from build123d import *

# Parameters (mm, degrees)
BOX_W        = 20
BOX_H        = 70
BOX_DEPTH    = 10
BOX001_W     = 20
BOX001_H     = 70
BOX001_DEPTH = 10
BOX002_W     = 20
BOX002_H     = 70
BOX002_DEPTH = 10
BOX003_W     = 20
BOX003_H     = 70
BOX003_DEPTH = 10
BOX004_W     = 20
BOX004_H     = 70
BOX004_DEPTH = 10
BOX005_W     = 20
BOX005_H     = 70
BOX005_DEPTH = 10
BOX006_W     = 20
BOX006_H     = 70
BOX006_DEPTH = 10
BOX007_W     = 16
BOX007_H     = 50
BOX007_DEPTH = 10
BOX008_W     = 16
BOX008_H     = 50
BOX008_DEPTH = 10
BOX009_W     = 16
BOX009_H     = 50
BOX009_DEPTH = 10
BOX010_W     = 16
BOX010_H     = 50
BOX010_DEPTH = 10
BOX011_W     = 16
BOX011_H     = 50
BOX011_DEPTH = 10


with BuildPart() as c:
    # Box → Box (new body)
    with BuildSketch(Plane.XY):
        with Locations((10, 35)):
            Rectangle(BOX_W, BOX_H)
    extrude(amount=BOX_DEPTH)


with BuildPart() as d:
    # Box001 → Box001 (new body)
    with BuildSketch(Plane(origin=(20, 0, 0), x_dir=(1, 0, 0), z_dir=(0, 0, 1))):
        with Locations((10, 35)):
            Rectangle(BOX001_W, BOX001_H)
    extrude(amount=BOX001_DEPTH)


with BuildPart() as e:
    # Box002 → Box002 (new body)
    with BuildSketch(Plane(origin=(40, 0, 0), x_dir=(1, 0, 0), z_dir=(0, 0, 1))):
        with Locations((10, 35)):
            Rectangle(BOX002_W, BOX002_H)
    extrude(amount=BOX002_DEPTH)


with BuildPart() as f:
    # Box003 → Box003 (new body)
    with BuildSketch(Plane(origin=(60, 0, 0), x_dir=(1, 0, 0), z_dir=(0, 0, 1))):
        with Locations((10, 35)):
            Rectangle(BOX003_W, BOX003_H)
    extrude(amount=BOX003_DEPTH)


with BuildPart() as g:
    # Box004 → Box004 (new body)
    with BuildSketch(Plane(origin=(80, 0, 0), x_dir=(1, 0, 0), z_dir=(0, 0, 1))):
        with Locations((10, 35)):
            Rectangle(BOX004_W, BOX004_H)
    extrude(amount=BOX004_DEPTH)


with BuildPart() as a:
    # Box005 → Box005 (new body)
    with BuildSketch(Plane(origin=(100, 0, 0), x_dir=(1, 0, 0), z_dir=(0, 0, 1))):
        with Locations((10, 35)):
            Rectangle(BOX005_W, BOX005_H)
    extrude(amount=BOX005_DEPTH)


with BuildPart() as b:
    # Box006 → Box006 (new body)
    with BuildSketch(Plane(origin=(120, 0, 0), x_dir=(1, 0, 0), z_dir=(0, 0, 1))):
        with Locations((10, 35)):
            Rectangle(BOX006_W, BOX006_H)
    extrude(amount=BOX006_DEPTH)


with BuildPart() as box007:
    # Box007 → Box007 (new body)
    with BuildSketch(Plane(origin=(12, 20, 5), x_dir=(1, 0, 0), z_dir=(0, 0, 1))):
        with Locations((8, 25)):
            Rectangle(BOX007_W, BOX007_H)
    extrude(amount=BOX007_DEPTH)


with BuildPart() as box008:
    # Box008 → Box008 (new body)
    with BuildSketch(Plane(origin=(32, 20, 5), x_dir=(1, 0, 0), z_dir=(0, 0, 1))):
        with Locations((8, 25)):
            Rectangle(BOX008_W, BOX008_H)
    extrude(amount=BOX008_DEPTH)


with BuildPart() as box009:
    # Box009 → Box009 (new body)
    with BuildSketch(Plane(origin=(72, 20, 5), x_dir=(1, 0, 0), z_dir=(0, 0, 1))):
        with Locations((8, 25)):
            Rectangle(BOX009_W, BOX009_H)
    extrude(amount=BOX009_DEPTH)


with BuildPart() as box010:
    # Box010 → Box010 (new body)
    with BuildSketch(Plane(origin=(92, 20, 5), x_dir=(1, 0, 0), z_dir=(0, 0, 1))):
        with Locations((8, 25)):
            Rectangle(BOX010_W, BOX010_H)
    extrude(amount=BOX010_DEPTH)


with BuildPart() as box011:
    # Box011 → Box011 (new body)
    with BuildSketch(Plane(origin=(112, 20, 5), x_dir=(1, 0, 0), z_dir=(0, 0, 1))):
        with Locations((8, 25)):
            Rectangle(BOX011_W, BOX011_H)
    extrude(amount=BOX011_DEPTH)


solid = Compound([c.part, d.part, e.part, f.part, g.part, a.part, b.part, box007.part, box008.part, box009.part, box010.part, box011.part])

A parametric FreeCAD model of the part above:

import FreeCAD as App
import Part
import Sketcher

doc = App.newDocument("Part")
body = doc.addObject("PartDesign::Body", "Body")

# Sketch on XY plane
sketch1 = body.newObject("Sketcher::SketchObject", "Sketch")
sketch1.AttachmentSupport = (doc.getObject("XY_Plane"), [""])
sketch1.MapMode = "FlatFace"
sketch1.addGeometry(Part.LineSegment(App.Vector(0, 70, 0), App.Vector(0, 0, 0)), False)
sketch1.addGeometry(Part.LineSegment(App.Vector(0, 0, 0), App.Vector(20, 0, 0)), False)
sketch1.addGeometry(Part.LineSegment(App.Vector(20, 0, 0), App.Vector(20, 70, 0)), False)
sketch1.addGeometry(Part.LineSegment(App.Vector(20, 70, 0), App.Vector(0, 70, 0)), False)
sketch1.addConstraint(Sketcher.Constraint("Coincident", 0, 2, 1, 1))
sketch1.addConstraint(Sketcher.Constraint("Coincident", 1, 2, 2, 1))
sketch1.addConstraint(Sketcher.Constraint("Coincident", 2, 2, 3, 1))
sketch1.addConstraint(Sketcher.Constraint("Coincident", 3, 2, 0, 1))
sketch1.addConstraint(Sketcher.Constraint("Vertical", 0))
sketch1.addConstraint(Sketcher.Constraint("Horizontal", 1))
sketch1.addConstraint(Sketcher.Constraint("Vertical", 2))
sketch1.addConstraint(Sketcher.Constraint("Horizontal", 3))
sketch1.addConstraint(Sketcher.Constraint("Coincident", 0, 2, -1, 1))
sketch1.addConstraint(Sketcher.Constraint("DistanceX", 1, 1, 1, 2, 20.0))
sketch1.addConstraint(Sketcher.Constraint("DistanceY", 0, 2, 0, 1, 70.0))
pad1 = body.newObject("PartDesign::Pad", "Pad")
pad1.Profile = sketch1
pad1.Length = 10
body2 = doc.addObject("PartDesign::Body", "Body001")

# Sketch on XY plane
sketch2 = body2.newObject("Sketcher::SketchObject", "Sketch001")
sketch2.AttachmentSupport = (doc.getObject("XY_Plane001"), [""])
sketch2.MapMode = "FlatFace"
sketch2.addGeometry(Part.LineSegment(App.Vector(20, 70, 0), App.Vector(20, 0, 0)), False)
sketch2.addGeometry(Part.LineSegment(App.Vector(20, 0, 0), App.Vector(40, 0, 0)), False)
sketch2.addGeometry(Part.LineSegment(App.Vector(40, 0, 0), App.Vector(40, 70, 0)), False)
sketch2.addGeometry(Part.LineSegment(App.Vector(40, 70, 0), App.Vector(20, 70, 0)), False)
sketch2.addConstraint(Sketcher.Constraint("Coincident", 0, 2, 1, 1))
sketch2.addConstraint(Sketcher.Constraint("Coincident", 1, 2, 2, 1))
sketch2.addConstraint(Sketcher.Constraint("Coincident", 2, 2, 3, 1))
sketch2.addConstraint(Sketcher.Constraint("Coincident", 3, 2, 0, 1))
sketch2.addConstraint(Sketcher.Constraint("Vertical", 0))
sketch2.addConstraint(Sketcher.Constraint("Horizontal", 1))
sketch2.addConstraint(Sketcher.Constraint("Vertical", 2))
sketch2.addConstraint(Sketcher.Constraint("Horizontal", 3))
sketch2.addConstraint(Sketcher.Constraint("PointOnObject", 0, 2, -1))
sketch2.addConstraint(Sketcher.Constraint("DistanceX", 1, 1, 1, 2, 20.0))
sketch2.addConstraint(Sketcher.Constraint("DistanceY", 0, 2, 0, 1, 70.0))
sketch2.addConstraint(Sketcher.Constraint("DistanceX", -1, 1, 0, 2, 20.0))
pad2 = body2.newObject("PartDesign::Pad", "Pad001")
pad2.Profile = sketch2
pad2.Length = 10
body3 = doc.addObject("PartDesign::Body", "Body002")

# Sketch on XY plane
sketch3 = body3.newObject("Sketcher::SketchObject", "Sketch002")
sketch3.AttachmentSupport = (doc.getObject("XY_Plane002"), [""])
sketch3.MapMode = "FlatFace"
sketch3.addGeometry(Part.LineSegment(App.Vector(40, 70, 0), App.Vector(40, 0, 0)), False)
sketch3.addGeometry(Part.LineSegment(App.Vector(40, 0, 0), App.Vector(60, 0, 0)), False)
sketch3.addGeometry(Part.LineSegment(App.Vector(60, 0, 0), App.Vector(60, 70, 0)), False)
sketch3.addGeometry(Part.LineSegment(App.Vector(60, 70, 0), App.Vector(40, 70, 0)), False)
sketch3.addConstraint(Sketcher.Constraint("Coincident", 0, 2, 1, 1))
sketch3.addConstraint(Sketcher.Constraint("Coincident", 1, 2, 2, 1))
sketch3.addConstraint(Sketcher.Constraint("Coincident", 2, 2, 3, 1))
sketch3.addConstraint(Sketcher.Constraint("Coincident", 3, 2, 0, 1))
sketch3.addConstraint(Sketcher.Constraint("Vertical", 0))
sketch3.addConstraint(Sketcher.Constraint("Horizontal", 1))
sketch3.addConstraint(Sketcher.Constraint("Vertical", 2))
sketch3.addConstraint(Sketcher.Constraint("Horizontal", 3))
sketch3.addConstraint(Sketcher.Constraint("PointOnObject", 0, 2, -1))
sketch3.addConstraint(Sketcher.Constraint("DistanceX", 1, 1, 1, 2, 20.0))
sketch3.addConstraint(Sketcher.Constraint("DistanceY", 0, 2, 0, 1, 70.0))
sketch3.addConstraint(Sketcher.Constraint("DistanceX", -1, 1, 0, 2, 40.0))
pad3 = body3.newObject("PartDesign::Pad", "Pad002")
pad3.Profile = sketch3
pad3.Length = 10
body4 = doc.addObject("PartDesign::Body", "Body003")

# Sketch on XY plane
sketch4 = body4.newObject("Sketcher::SketchObject", "Sketch003")
sketch4.AttachmentSupport = (doc.getObject("XY_Plane003"), [""])
sketch4.MapMode = "FlatFace"
sketch4.addGeometry(Part.LineSegment(App.Vector(60, 70, 0), App.Vector(60, 0, 0)), False)
sketch4.addGeometry(Part.LineSegment(App.Vector(60, 0, 0), App.Vector(80, 0, 0)), False)
sketch4.addGeometry(Part.LineSegment(App.Vector(80, 0, 0), App.Vector(80, 70, 0)), False)
sketch4.addGeometry(Part.LineSegment(App.Vector(80, 70, 0), App.Vector(60, 70, 0)), False)
sketch4.addConstraint(Sketcher.Constraint("Coincident", 0, 2, 1, 1))
sketch4.addConstraint(Sketcher.Constraint("Coincident", 1, 2, 2, 1))
sketch4.addConstraint(Sketcher.Constraint("Coincident", 2, 2, 3, 1))
sketch4.addConstraint(Sketcher.Constraint("Coincident", 3, 2, 0, 1))
sketch4.addConstraint(Sketcher.Constraint("Vertical", 0))
sketch4.addConstraint(Sketcher.Constraint("Horizontal", 1))
sketch4.addConstraint(Sketcher.Constraint("Vertical", 2))
sketch4.addConstraint(Sketcher.Constraint("Horizontal", 3))
sketch4.addConstraint(Sketcher.Constraint("PointOnObject", 0, 2, -1))
sketch4.addConstraint(Sketcher.Constraint("DistanceX", 1, 1, 1, 2, 20.0))
sketch4.addConstraint(Sketcher.Constraint("DistanceY", 0, 2, 0, 1, 70.0))
sketch4.addConstraint(Sketcher.Constraint("DistanceX", -1, 1, 0, 2, 60.0))
pad4 = body4.newObject("PartDesign::Pad", "Pad003")
pad4.Profile = sketch4
pad4.Length = 10
body5 = doc.addObject("PartDesign::Body", "Body004")

# Sketch on XY plane
sketch5 = body5.newObject("Sketcher::SketchObject", "Sketch004")
sketch5.AttachmentSupport = (doc.getObject("XY_Plane004"), [""])
sketch5.MapMode = "FlatFace"
sketch5.addGeometry(Part.LineSegment(App.Vector(80, 70, 0), App.Vector(80, 0, 0)), False)
sketch5.addGeometry(Part.LineSegment(App.Vector(80, 0, 0), App.Vector(100, 0, 0)), False)
sketch5.addGeometry(Part.LineSegment(App.Vector(100, 0, 0), App.Vector(100, 70, 0)), False)
sketch5.addGeometry(Part.LineSegment(App.Vector(100, 70, 0), App.Vector(80, 70, 0)), False)
sketch5.addConstraint(Sketcher.Constraint("Coincident", 0, 2, 1, 1))
sketch5.addConstraint(Sketcher.Constraint("Coincident", 1, 2, 2, 1))
sketch5.addConstraint(Sketcher.Constraint("Coincident", 2, 2, 3, 1))
sketch5.addConstraint(Sketcher.Constraint("Coincident", 3, 2, 0, 1))
sketch5.addConstraint(Sketcher.Constraint("Vertical", 0))
sketch5.addConstraint(Sketcher.Constraint("Horizontal", 1))
sketch5.addConstraint(Sketcher.Constraint("Vertical", 2))
sketch5.addConstraint(Sketcher.Constraint("Horizontal", 3))
sketch5.addConstraint(Sketcher.Constraint("PointOnObject", 0, 2, -1))
sketch5.addConstraint(Sketcher.Constraint("DistanceX", 1, 1, 1, 2, 20.0))
sketch5.addConstraint(Sketcher.Constraint("DistanceY", 0, 2, 0, 1, 70.0))
sketch5.addConstraint(Sketcher.Constraint("DistanceX", -1, 1, 0, 2, 80.0))
pad5 = body5.newObject("PartDesign::Pad", "Pad004")
pad5.Profile = sketch5
pad5.Length = 10
body6 = doc.addObject("PartDesign::Body", "Body005")

# Sketch on XY plane
sketch6 = body6.newObject("Sketcher::SketchObject", "Sketch005")
sketch6.AttachmentSupport = (doc.getObject("XY_Plane005"), [""])
sketch6.MapMode = "FlatFace"
sketch6.addGeometry(Part.LineSegment(App.Vector(100, 70, 0), App.Vector(100, 0, 0)), False)
sketch6.addGeometry(Part.LineSegment(App.Vector(100, 0, 0), App.Vector(120, 0, 0)), False)
sketch6.addGeometry(Part.LineSegment(App.Vector(120, 0, 0), App.Vector(120, 70, 0)), False)
sketch6.addGeometry(Part.LineSegment(App.Vector(120, 70, 0), App.Vector(100, 70, 0)), False)
sketch6.addConstraint(Sketcher.Constraint("Coincident", 0, 2, 1, 1))
sketch6.addConstraint(Sketcher.Constraint("Coincident", 1, 2, 2, 1))
sketch6.addConstraint(Sketcher.Constraint("Coincident", 2, 2, 3, 1))
sketch6.addConstraint(Sketcher.Constraint("Coincident", 3, 2, 0, 1))
sketch6.addConstraint(Sketcher.Constraint("Vertical", 0))
sketch6.addConstraint(Sketcher.Constraint("Horizontal", 1))
sketch6.addConstraint(Sketcher.Constraint("Vertical", 2))
sketch6.addConstraint(Sketcher.Constraint("Horizontal", 3))
sketch6.addConstraint(Sketcher.Constraint("PointOnObject", 0, 2, -1))
sketch6.addConstraint(Sketcher.Constraint("DistanceX", 1, 1, 1, 2, 20.0))
sketch6.addConstraint(Sketcher.Constraint("DistanceY", 0, 2, 0, 1, 70.0))
sketch6.addConstraint(Sketcher.Constraint("DistanceX", -1, 1, 0, 2, 100.0))
pad6 = body6.newObject("PartDesign::Pad", "Pad005")
pad6.Profile = sketch6
pad6.Length = 10
body7 = doc.addObject("PartDesign::Body", "Body006")

# Sketch on XY plane
sketch7 = body7.newObject("Sketcher::SketchObject", "Sketch006")
sketch7.AttachmentSupport = (doc.getObject("XY_Plane006"), [""])
sketch7.MapMode = "FlatFace"
sketch7.addGeometry(Part.LineSegment(App.Vector(120, 70, 0), App.Vector(120, 0, 0)), False)
sketch7.addGeometry(Part.LineSegment(App.Vector(120, 0, 0), App.Vector(140, 0, 0)), False)
sketch7.addGeometry(Part.LineSegment(App.Vector(140, 0, 0), App.Vector(140, 70, 0)), False)
sketch7.addGeometry(Part.LineSegment(App.Vector(140, 70, 0), App.Vector(120, 70, 0)), False)
sketch7.addConstraint(Sketcher.Constraint("Coincident", 0, 2, 1, 1))
sketch7.addConstraint(Sketcher.Constraint("Coincident", 1, 2, 2, 1))
sketch7.addConstraint(Sketcher.Constraint("Coincident", 2, 2, 3, 1))
sketch7.addConstraint(Sketcher.Constraint("Coincident", 3, 2, 0, 1))
sketch7.addConstraint(Sketcher.Constraint("Vertical", 0))
sketch7.addConstraint(Sketcher.Constraint("Horizontal", 1))
sketch7.addConstraint(Sketcher.Constraint("Vertical", 2))
sketch7.addConstraint(Sketcher.Constraint("Horizontal", 3))
sketch7.addConstraint(Sketcher.Constraint("PointOnObject", 0, 2, -1))
sketch7.addConstraint(Sketcher.Constraint("DistanceX", 1, 1, 1, 2, 20.0))
sketch7.addConstraint(Sketcher.Constraint("DistanceY", 0, 2, 0, 1, 70.0))
sketch7.addConstraint(Sketcher.Constraint("DistanceX", -1, 1, 0, 2, 120.0))
pad7 = body7.newObject("PartDesign::Pad", "Pad006")
pad7.Profile = sketch7
pad7.Length = 10
body8 = doc.addObject("PartDesign::Body", "Body007")

# Sketch on XY plane
sketch8 = body8.newObject("Sketcher::SketchObject", "Sketch007")
sketch8.AttachmentSupport = (doc.getObject("XY_Plane007"), [""])
sketch8.MapMode = "FlatFace"
sketch8.AttachmentOffset = App.Placement(App.Vector(0, 0, 5), App.Rotation())
sketch8.addGeometry(Part.LineSegment(App.Vector(12, 70, 0), App.Vector(12, 20, 0)), False)
sketch8.addGeometry(Part.LineSegment(App.Vector(12, 20, 0), App.Vector(28, 20, 0)), False)
sketch8.addGeometry(Part.LineSegment(App.Vector(28, 20, 0), App.Vector(28, 70, 0)), False)
sketch8.addGeometry(Part.LineSegment(App.Vector(28, 70, 0), App.Vector(12, 70, 0)), False)
sketch8.addConstraint(Sketcher.Constraint("Coincident", 0, 2, 1, 1))
sketch8.addConstraint(Sketcher.Constraint("Coincident", 1, 2, 2, 1))
sketch8.addConstraint(Sketcher.Constraint("Coincident", 2, 2, 3, 1))
sketch8.addConstraint(Sketcher.Constraint("Coincident", 3, 2, 0, 1))
sketch8.addConstraint(Sketcher.Constraint("Vertical", 0))
sketch8.addConstraint(Sketcher.Constraint("Horizontal", 1))
sketch8.addConstraint(Sketcher.Constraint("Vertical", 2))
sketch8.addConstraint(Sketcher.Constraint("Horizontal", 3))
sketch8.addConstraint(Sketcher.Constraint("DistanceX", 1, 1, 1, 2, 16.0))
sketch8.addConstraint(Sketcher.Constraint("DistanceY", 0, 2, 0, 1, 50.0))
sketch8.addConstraint(Sketcher.Constraint("DistanceX", -1, 1, 0, 2, 12.0))
sketch8.addConstraint(Sketcher.Constraint("DistanceY", -1, 1, 0, 2, 20.0))
pad8 = body8.newObject("PartDesign::Pad", "Pad007")
pad8.Profile = sketch8
pad8.Length = 10
body9 = doc.addObject("PartDesign::Body", "Body008")

# Sketch on XY plane
sketch9 = body9.newObject("Sketcher::SketchObject", "Sketch008")
sketch9.AttachmentSupport = (doc.getObject("XY_Plane008"), [""])
sketch9.MapMode = "FlatFace"
sketch9.AttachmentOffset = App.Placement(App.Vector(0, 0, 5), App.Rotation())
sketch9.addGeometry(Part.LineSegment(App.Vector(32, 70, 0), App.Vector(32, 20, 0)), False)
sketch9.addGeometry(Part.LineSegment(App.Vector(32, 20, 0), App.Vector(48, 20, 0)), False)
sketch9.addGeometry(Part.LineSegment(App.Vector(48, 20, 0), App.Vector(48, 70, 0)), False)
sketch9.addGeometry(Part.LineSegment(App.Vector(48, 70, 0), App.Vector(32, 70, 0)), False)
sketch9.addConstraint(Sketcher.Constraint("Coincident", 0, 2, 1, 1))
sketch9.addConstraint(Sketcher.Constraint("Coincident", 1, 2, 2, 1))
sketch9.addConstraint(Sketcher.Constraint("Coincident", 2, 2, 3, 1))
sketch9.addConstraint(Sketcher.Constraint("Coincident", 3, 2, 0, 1))
sketch9.addConstraint(Sketcher.Constraint("Vertical", 0))
sketch9.addConstraint(Sketcher.Constraint("Horizontal", 1))
sketch9.addConstraint(Sketcher.Constraint("Vertical", 2))
sketch9.addConstraint(Sketcher.Constraint("Horizontal", 3))
sketch9.addConstraint(Sketcher.Constraint("DistanceX", 1, 1, 1, 2, 16.0))
sketch9.addConstraint(Sketcher.Constraint("DistanceY", 0, 2, 0, 1, 50.0))
sketch9.addConstraint(Sketcher.Constraint("DistanceX", -1, 1, 0, 2, 32.0))
sketch9.addConstraint(Sketcher.Constraint("DistanceY", -1, 1, 0, 2, 20.0))
pad9 = body9.newObject("PartDesign::Pad", "Pad008")
pad9.Profile = sketch9
pad9.Length = 10
body10 = doc.addObject("PartDesign::Body", "Body009")

# Sketch on XY plane
sketch10 = body10.newObject("Sketcher::SketchObject", "Sketch009")
sketch10.AttachmentSupport = (doc.getObject("XY_Plane009"), [""])
sketch10.MapMode = "FlatFace"
sketch10.AttachmentOffset = App.Placement(App.Vector(0, 0, 5), App.Rotation())
sketch10.addGeometry(Part.LineSegment(App.Vector(72, 70, 0), App.Vector(72, 20, 0)), False)
sketch10.addGeometry(Part.LineSegment(App.Vector(72, 20, 0), App.Vector(88, 20, 0)), False)
sketch10.addGeometry(Part.LineSegment(App.Vector(88, 20, 0), App.Vector(88, 70, 0)), False)
sketch10.addGeometry(Part.LineSegment(App.Vector(88, 70, 0), App.Vector(72, 70, 0)), False)
sketch10.addConstraint(Sketcher.Constraint("Coincident", 0, 2, 1, 1))
sketch10.addConstraint(Sketcher.Constraint("Coincident", 1, 2, 2, 1))
sketch10.addConstraint(Sketcher.Constraint("Coincident", 2, 2, 3, 1))
sketch10.addConstraint(Sketcher.Constraint("Coincident", 3, 2, 0, 1))
sketch10.addConstraint(Sketcher.Constraint("Vertical", 0))
sketch10.addConstraint(Sketcher.Constraint("Horizontal", 1))
sketch10.addConstraint(Sketcher.Constraint("Vertical", 2))
sketch10.addConstraint(Sketcher.Constraint("Horizontal", 3))
sketch10.addConstraint(Sketcher.Constraint("DistanceX", 1, 1, 1, 2, 16.0))
sketch10.addConstraint(Sketcher.Constraint("DistanceY", 0, 2, 0, 1, 50.0))
sketch10.addConstraint(Sketcher.Constraint("DistanceX", -1, 1, 0, 2, 72.0))
sketch10.addConstraint(Sketcher.Constraint("DistanceY", -1, 1, 0, 2, 20.0))
pad10 = body10.newObject("PartDesign::Pad", "Pad009")
pad10.Profile = sketch10
pad10.Length = 10
body11 = doc.addObject("PartDesign::Body", "Body010")

# Sketch on XY plane
sketch11 = body11.newObject("Sketcher::SketchObject", "Sketch010")
sketch11.AttachmentSupport = (doc.getObject("XY_Plane010"), [""])
sketch11.MapMode = "FlatFace"
sketch11.AttachmentOffset = App.Placement(App.Vector(0, 0, 5), App.Rotation())
sketch11.addGeometry(Part.LineSegment(App.Vector(92, 70, 0), App.Vector(92, 20, 0)), False)
sketch11.addGeometry(Part.LineSegment(App.Vector(92, 20, 0), App.Vector(108, 20, 0)), False)
sketch11.addGeometry(Part.LineSegment(App.Vector(108, 20, 0), App.Vector(108, 70, 0)), False)
sketch11.addGeometry(Part.LineSegment(App.Vector(108, 70, 0), App.Vector(92, 70, 0)), False)
sketch11.addConstraint(Sketcher.Constraint("Coincident", 0, 2, 1, 1))
sketch11.addConstraint(Sketcher.Constraint("Coincident", 1, 2, 2, 1))
sketch11.addConstraint(Sketcher.Constraint("Coincident", 2, 2, 3, 1))
sketch11.addConstraint(Sketcher.Constraint("Coincident", 3, 2, 0, 1))
sketch11.addConstraint(Sketcher.Constraint("Vertical", 0))
sketch11.addConstraint(Sketcher.Constraint("Horizontal", 1))
sketch11.addConstraint(Sketcher.Constraint("Vertical", 2))
sketch11.addConstraint(Sketcher.Constraint("Horizontal", 3))
sketch11.addConstraint(Sketcher.Constraint("DistanceX", 1, 1, 1, 2, 16.0))
sketch11.addConstraint(Sketcher.Constraint("DistanceY", 0, 2, 0, 1, 50.0))
sketch11.addConstraint(Sketcher.Constraint("DistanceX", -1, 1, 0, 2, 92.0))
sketch11.addConstraint(Sketcher.Constraint("DistanceY", -1, 1, 0, 2, 20.0))
pad11 = body11.newObject("PartDesign::Pad", "Pad010")
pad11.Profile = sketch11
pad11.Length = 10
body12 = doc.addObject("PartDesign::Body", "Body011")

# Sketch on XY plane
sketch12 = body12.newObject("Sketcher::SketchObject", "Sketch011")
sketch12.AttachmentSupport = (doc.getObject("XY_Plane011"), [""])
sketch12.MapMode = "FlatFace"
sketch12.AttachmentOffset = App.Placement(App.Vector(0, 0, 5), App.Rotation())
sketch12.addGeometry(Part.LineSegment(App.Vector(112, 70, 0), App.Vector(112, 20, 0)), False)
sketch12.addGeometry(Part.LineSegment(App.Vector(112, 20, 0), App.Vector(128, 20, 0)), False)
sketch12.addGeometry(Part.LineSegment(App.Vector(128, 20, 0), App.Vector(128, 70, 0)), False)
sketch12.addGeometry(Part.LineSegment(App.Vector(128, 70, 0), App.Vector(112, 70, 0)), False)
sketch12.addConstraint(Sketcher.Constraint("Coincident", 0, 2, 1, 1))
sketch12.addConstraint(Sketcher.Constraint("Coincident", 1, 2, 2, 1))
sketch12.addConstraint(Sketcher.Constraint("Coincident", 2, 2, 3, 1))
sketch12.addConstraint(Sketcher.Constraint("Coincident", 3, 2, 0, 1))
sketch12.addConstraint(Sketcher.Constraint("Vertical", 0))
sketch12.addConstraint(Sketcher.Constraint("Horizontal", 1))
sketch12.addConstraint(Sketcher.Constraint("Vertical", 2))
sketch12.addConstraint(Sketcher.Constraint("Horizontal", 3))
sketch12.addConstraint(Sketcher.Constraint("DistanceX", 1, 1, 1, 2, 16.0))
sketch12.addConstraint(Sketcher.Constraint("DistanceY", 0, 2, 0, 1, 50.0))
sketch12.addConstraint(Sketcher.Constraint("DistanceX", -1, 1, 0, 2, 112.0))
sketch12.addConstraint(Sketcher.Constraint("DistanceY", -1, 1, 0, 2, 20.0))
pad12 = body12.newObject("PartDesign::Pad", "Pad011")
pad12.Profile = sketch12
pad12.Length = 10

doc.recompute()
